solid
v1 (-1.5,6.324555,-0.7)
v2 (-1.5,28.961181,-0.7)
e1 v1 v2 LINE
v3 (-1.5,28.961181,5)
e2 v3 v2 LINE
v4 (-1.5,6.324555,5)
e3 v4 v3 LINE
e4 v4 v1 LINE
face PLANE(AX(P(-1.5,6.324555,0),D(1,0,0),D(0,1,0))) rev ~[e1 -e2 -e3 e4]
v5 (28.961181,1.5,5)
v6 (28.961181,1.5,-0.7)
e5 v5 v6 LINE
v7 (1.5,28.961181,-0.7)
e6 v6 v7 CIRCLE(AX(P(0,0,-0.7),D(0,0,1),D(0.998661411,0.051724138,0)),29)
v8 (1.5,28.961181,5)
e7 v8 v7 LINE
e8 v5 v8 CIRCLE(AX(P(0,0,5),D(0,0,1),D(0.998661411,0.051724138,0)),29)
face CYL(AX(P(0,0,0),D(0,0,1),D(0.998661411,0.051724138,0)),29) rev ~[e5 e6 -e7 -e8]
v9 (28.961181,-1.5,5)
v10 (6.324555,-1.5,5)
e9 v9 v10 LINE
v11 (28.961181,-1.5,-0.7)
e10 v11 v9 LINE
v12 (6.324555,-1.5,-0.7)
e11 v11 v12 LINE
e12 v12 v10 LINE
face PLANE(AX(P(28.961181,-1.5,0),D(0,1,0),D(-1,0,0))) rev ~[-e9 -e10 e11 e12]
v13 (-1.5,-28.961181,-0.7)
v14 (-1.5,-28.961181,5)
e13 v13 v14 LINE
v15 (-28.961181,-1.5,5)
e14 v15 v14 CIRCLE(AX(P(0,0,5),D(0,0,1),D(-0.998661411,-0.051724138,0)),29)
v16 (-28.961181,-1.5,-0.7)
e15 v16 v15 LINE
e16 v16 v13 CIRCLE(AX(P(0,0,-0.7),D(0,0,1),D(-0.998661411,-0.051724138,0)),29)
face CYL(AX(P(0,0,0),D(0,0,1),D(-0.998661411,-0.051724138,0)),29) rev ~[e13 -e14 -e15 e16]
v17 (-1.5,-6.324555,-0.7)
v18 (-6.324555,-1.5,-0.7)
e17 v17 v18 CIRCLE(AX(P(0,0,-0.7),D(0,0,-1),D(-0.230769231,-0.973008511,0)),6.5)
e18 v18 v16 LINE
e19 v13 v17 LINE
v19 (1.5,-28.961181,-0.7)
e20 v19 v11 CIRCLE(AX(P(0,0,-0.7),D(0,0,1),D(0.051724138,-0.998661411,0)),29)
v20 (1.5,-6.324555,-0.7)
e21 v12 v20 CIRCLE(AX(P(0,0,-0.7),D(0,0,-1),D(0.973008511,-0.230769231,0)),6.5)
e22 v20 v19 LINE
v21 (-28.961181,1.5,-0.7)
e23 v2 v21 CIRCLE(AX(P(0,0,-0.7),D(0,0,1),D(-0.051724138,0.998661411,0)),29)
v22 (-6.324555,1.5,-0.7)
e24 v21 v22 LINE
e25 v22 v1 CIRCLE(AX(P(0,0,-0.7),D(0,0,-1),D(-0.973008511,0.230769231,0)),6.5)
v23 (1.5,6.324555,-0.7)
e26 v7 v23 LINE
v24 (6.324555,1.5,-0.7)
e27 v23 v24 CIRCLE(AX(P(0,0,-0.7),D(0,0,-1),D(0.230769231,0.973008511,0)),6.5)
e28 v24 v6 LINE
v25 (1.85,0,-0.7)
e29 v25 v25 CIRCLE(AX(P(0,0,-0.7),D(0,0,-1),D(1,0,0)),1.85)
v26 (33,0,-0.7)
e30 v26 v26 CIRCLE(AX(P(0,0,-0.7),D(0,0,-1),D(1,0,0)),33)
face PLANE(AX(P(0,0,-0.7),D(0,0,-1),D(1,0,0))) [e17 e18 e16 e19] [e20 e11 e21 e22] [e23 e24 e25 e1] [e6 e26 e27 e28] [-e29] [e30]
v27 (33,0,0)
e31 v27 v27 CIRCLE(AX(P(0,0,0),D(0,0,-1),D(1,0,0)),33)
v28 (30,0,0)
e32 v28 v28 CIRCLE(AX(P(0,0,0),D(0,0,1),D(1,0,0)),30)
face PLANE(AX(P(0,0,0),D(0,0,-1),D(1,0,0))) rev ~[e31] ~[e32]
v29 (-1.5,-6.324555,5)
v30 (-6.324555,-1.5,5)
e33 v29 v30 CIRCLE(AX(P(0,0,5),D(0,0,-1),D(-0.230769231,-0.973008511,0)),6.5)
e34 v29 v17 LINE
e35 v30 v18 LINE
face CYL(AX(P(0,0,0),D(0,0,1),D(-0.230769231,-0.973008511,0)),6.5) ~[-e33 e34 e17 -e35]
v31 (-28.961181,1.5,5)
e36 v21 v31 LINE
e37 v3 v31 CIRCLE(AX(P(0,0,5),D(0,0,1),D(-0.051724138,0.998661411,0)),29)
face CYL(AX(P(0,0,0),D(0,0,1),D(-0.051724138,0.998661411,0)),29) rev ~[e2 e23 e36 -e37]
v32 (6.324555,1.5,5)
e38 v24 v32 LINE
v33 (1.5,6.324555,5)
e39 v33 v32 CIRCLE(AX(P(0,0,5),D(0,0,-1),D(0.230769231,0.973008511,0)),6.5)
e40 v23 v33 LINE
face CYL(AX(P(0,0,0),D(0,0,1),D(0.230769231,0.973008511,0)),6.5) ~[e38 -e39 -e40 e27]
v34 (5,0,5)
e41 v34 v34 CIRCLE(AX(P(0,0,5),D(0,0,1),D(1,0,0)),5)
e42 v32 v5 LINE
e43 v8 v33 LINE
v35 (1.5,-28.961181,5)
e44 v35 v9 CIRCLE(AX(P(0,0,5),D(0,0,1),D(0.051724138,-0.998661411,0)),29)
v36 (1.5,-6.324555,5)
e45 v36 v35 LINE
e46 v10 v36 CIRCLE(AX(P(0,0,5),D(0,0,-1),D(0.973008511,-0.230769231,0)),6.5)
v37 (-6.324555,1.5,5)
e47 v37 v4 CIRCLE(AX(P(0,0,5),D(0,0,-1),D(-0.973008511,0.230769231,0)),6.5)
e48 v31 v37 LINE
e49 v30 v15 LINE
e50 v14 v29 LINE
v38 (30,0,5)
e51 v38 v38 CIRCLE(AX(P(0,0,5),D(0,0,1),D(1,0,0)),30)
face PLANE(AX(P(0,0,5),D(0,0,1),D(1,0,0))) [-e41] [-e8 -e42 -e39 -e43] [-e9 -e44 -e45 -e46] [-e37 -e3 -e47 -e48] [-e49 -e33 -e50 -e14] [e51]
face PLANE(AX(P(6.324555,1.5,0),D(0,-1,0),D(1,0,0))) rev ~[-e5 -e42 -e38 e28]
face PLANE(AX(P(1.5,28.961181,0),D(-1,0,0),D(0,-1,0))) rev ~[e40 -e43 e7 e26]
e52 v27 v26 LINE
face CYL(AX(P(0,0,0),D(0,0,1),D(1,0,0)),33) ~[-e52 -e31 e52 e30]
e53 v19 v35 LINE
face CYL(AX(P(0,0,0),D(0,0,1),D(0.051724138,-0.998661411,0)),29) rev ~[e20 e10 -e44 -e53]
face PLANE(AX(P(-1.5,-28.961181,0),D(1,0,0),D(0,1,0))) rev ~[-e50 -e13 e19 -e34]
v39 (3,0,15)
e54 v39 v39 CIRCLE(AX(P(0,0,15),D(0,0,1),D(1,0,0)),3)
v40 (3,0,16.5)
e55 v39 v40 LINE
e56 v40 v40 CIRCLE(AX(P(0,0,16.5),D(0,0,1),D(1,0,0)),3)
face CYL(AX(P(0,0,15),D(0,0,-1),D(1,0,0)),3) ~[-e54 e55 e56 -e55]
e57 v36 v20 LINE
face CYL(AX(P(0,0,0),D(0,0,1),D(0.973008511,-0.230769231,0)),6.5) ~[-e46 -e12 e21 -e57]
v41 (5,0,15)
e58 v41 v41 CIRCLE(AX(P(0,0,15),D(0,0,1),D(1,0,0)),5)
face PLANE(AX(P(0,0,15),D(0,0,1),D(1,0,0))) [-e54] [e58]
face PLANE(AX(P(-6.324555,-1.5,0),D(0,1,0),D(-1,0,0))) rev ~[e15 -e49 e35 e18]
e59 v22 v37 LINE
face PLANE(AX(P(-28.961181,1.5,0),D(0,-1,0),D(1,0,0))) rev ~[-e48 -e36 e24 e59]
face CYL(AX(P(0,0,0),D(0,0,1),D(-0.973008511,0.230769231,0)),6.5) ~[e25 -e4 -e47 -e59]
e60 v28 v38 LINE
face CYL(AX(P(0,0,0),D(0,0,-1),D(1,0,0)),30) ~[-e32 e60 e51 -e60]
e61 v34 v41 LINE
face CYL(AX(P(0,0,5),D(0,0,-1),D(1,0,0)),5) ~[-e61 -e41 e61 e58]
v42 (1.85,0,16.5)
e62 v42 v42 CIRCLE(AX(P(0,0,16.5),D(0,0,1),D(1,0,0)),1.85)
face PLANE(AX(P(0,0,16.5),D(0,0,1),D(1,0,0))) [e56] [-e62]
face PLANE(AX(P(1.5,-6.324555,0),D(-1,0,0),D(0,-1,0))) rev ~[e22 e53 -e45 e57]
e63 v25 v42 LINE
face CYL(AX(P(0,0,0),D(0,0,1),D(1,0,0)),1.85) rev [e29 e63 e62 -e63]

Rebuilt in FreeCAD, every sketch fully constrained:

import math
import FreeCAD as App
import Part
import Sketcher

V = App.Vector

doc = App.newDocument("Part")
params = doc.addObject("Spreadsheet::Sheet", "Params")
for row, (alias, value) in enumerate([
    ("sketch1_diameter", "60 mm"),
    ("pad1_length", "5 mm"),
    ("sketch2_diameter", "10 mm"),
    ("pad2_length", "10 mm"),
    ("sketch3_diameter", "3.7 mm"),
    ("sketch4_diameter", "6 mm"),
    ("sketch4_diameter2", "3.7 mm"),
    ("pad3_length", "1.5 mm"),
    ("sketch5_radius", "29 mm"),
    ("sketch5_radius2", "6.5 mm"),
    ("sketch6_diameter", "66 mm"),
    ("sketch6_radius", "29 mm"),
    ("sketch6_diameter2", "3.7 mm"),
    ("sketch6_radius2", "6.5 mm"),
    ("pad4_length", "0.7 mm"),
], start=1):
    params.set(f"A{row}", alias)
    params.set(f"B{row}", "=" + value)
    params.setAlias(f"B{row}", alias)

body = doc.addObject("PartDesign::Body", "Body")

sketch1 = body.newObject("Sketcher::SketchObject", "Sketch")
sketch1.AttachmentSupport = (doc.getObject("XY_Plane"), [""])
sketch1.MapMode = "FlatFace"
sketch1.addGeometry(Part.Circle(V(0, 0, 0), V(0, 0, 1), 30), False)
sketch1.addConstraint([
    Sketcher.Constraint("Coincident", 0, 3, -1, 1),
    Sketcher.Constraint("Diameter", 0, 60.0),
])
sketch1.setExpression("Constraints[1]", "Params.sketch1_diameter")
pad1 = body.newObject("PartDesign::Pad", "Pad")
pad1.Profile = sketch1
pad1.setExpression("Length", "Params.pad1_length")

sketch2 = body.newObject("Sketcher::SketchObject", "Sketch001")
sketch2.AttachmentSupport = (doc.getObject("XY_Plane"), [""])
sketch2.MapMode = "FlatFace"
sketch2.AttachmentOffset = App.Placement(V(0, 0, 5), App.Rotation())
sketch2.addGeometry(Part.Circle(V(0, 0, 0), V(0, 0, 1), 5), False)
sketch2.addConstraint([
    Sketcher.Constraint("Coincident", 0, 3, -1, 1),
    Sketcher.Constraint("Diameter", 0, 10.0),
])
sketch2.setExpression("Constraints[1]", "Params.sketch2_diameter")
pad2 = body.newObject("PartDesign::Pad", "Pad001")
pad2.Profile = sketch2
pad2.setExpression("Length", "Params.pad2_length")

sketch3 = body.newObject("Sketcher::SketchObject", "Sketch002")
sketch3.AttachmentSupport = (doc.getObject("XY_Plane"), [""])
sketch3.MapMode = "FlatFace"
sketch3.AttachmentOffset = App.Placement(V(0, 0, 15), App.Rotation())
sketch3.addGeometry(Part.Circle(V(0, 0, 0), V(0, 0, 1), 1.9), False)
sketch3.addConstraint([
    Sketcher.Constraint("Coincident", 0, 3, -1, 1),
    Sketcher.Constraint("Diameter", 0, 3.7),
])
sketch3.setExpression("Constraints[1]", "Params.sketch3_diameter")
pocket1 = body.newObject("PartDesign::Pocket", "Pocket")
pocket1.Profile = sketch3
pocket1.Type = "ThroughAll"

sketch4 = body.newObject("Sketcher::SketchObject", "Sketch003")
sketch4.AttachmentSupport = (doc.getObject("XY_Plane"), [""])
sketch4.MapMode = "FlatFace"
sketch4.AttachmentOffset = App.Placement(V(0, 0, 15), App.Rotation())
sketch4.addGeometry([
    Part.Circle(V(0, 0, 0), V(0, 0, 1), 3),
    Part.Circle(V(0, 0, 0), V(0, 0, 1), 1.9),
], False)
sketch4.addConstraint([
    Sketcher.Constraint("Coincident", 0, 3, -1, 1),
    Sketcher.Constraint("Coincident", 1, 3, -1, 1),
    Sketcher.Constraint("Diameter", 0, 6.0),
    Sketcher.Constraint("Diameter", 1, 3.7),
])
sketch4.setExpression("Constraints[2]", "Params.sketch4_diameter")
sketch4.setExpression("Constraints[3]", "Params.sketch4_diameter2")
pad3 = body.newObject("PartDesign::Pad", "Pad002")
pad3.Profile = sketch4
pad3.setExpression("Length", "Params.pad3_length")

sketch5 = body.newObject("Sketcher::SketchObject", "Sketch004")
sketch5.AttachmentSupport = (doc.getObject("XY_Plane"), [""])
sketch5.MapMode = "FlatFace"
sketch5.AttachmentOffset = App.Placement(V(0, 0, 5), App.Rotation())
sketch5.addGeometry([
    Part.LineSegment(V(6, 2, 0), V(29, 2, 0)),
    Part.ArcOfCircle(Part.Circle(V(0, 0, 0), V(0, 0, 1), 29), math.radians(3), math.radians(87)),
    Part.LineSegment(V(2, 29, 0), V(2, 6, 0)),
    Part.ArcOfCircle(Part.Circle(V(0, 0, 0), V(0, 0, 1), 6), math.radians(13), math.radians(77)),
    Part.LineSegment(V(-2, 6, 0), V(-2, 29, 0)),
    Part.ArcOfCircle(Part.Circle(V(0, 0, 0), V(0, 0, 1), 29), math.radians(93), math.radians(177)),
    Part.LineSegment(V(-29, 2, 0), V(-6, 2, 0)),
    Part.ArcOfCircle(Part.Circle(V(0, 0, 0), V(0, 0, 1), 6), math.radians(103), math.radians(167)),
    Part.ArcOfCircle(Part.Circle(V(0, 0, 0), V(0, 0, 1), 29), math.radians(-177), math.radians(-93)),
    Part.LineSegment(V(-2, -29, 0), V(-2, -6, 0)),
    Part.ArcOfCircle(Part.Circle(V(0, 0, 0), V(0, 0, 1), 6), math.radians(-167), math.radians(-103)),
    Part.LineSegment(V(-6, -2, 0), V(-29, -2, 0)),
    Part.ArcOfCircle(Part.Circle(V(0, 0, 0), V(0, 0, 1), 29), math.radians(-87), math.radians(-3)),
    Part.LineSegment(V(29, -2, 0), V(6, -2, 0)),
    Part.ArcOfCircle(Part.Circle(V(0, 0, 0), V(0, 0, 1), 6), math.radians(-77), math.radians(-13)),
    Part.LineSegment(V(2, -6, 0), V(2, -29, 0)),
], False)
sketch5.addConstraint([
    Sketcher.Constraint("Coincident", 0, 2, 1, 1),
    Sketcher.Constraint("Coincident", 1, 2, 2, 1),
    Sketcher.Constraint("Coincident", 2, 2, 3, 2),
    Sketcher.Constraint("Coincident", 3, 1, 0, 1),
    Sketcher.Constraint("Coincident", 4, 2, 5, 1),
    Sketcher.Constraint("Coincident", 5, 2, 6, 1),
    Sketcher.Constraint("Coincident", 6, 2, 7, 2),
    Sketcher.Constraint("Coincident", 7, 1, 4, 1),
    Sketcher.Constraint("Coincident", 8, 2, 9, 1),
    Sketcher.Constraint("Coincident", 9, 2, 10, 2),
    Sketcher.Constraint("Coincident", 10, 1, 11, 1),
    Sketcher.Constraint("Coincident", 11, 2, 8, 1),
    Sketcher.Constraint("Coincident", 12, 2, 13, 1),
    Sketcher.Constraint("Coincident", 13, 2, 14, 2),
    Sketcher.Constraint("Coincident", 14, 1, 15, 1),
    Sketcher.Constraint("Coincident", 15, 2, 12, 1),
    Sketcher.Constraint("Horizontal", 0),
    Sketcher.Constraint("Vertical", 2),
    Sketcher.Constraint("Vertical", 4),
    Sketcher.Constraint("Horizontal", 6),
    Sketcher.Constraint("Vertical", 9),
    Sketcher.Constraint("Horizontal", 11),
    Sketcher.Constraint("Horizontal", 13),
    Sketcher.Constraint("Vertical", 15),
    Sketcher.Constraint("Coincident", 1, 3, -1, 1),
    Sketcher.Constraint("Coincident", 3, 3, -1, 1),
    Sketcher.Constraint("Coincident", 5, 3, -1, 1),
    Sketcher.Constraint("Coincident", 7, 3, -1, 1),
    Sketcher.Constraint("Coincident", 8, 3, -1, 1),
    Sketcher.Constraint("Coincident", 10, 3, -1, 1),
    Sketcher.Constraint("Coincident", 12, 3, -1, 1),
    Sketcher.Constraint("Coincident", 14, 3, -1, 1),
    Sketcher.Constraint("Equal", 1, 5),
    Sketcher.Constraint("Equal", 3, 7),
    Sketcher.Constraint("Equal", 5, 8),
    Sketcher.Constraint("Equal", 7, 10),
    Sketcher.Constraint("Equal", 8, 12),
    Sketcher.Constraint("Equal", 10, 14),
    Sketcher.Constraint("Horizontal", 1, 2, 4, 2),
    Sketcher.Constraint("Horizontal", 3, 1, 5, 2),
    Sketcher.Constraint("Horizontal", 11, 2, 12, 2),
    Sketcher.Constraint("Horizontal", 9, 2, 14, 1),
    Sketcher.Constraint("Vertical", 7, 1, 8, 2),
    Sketcher.Constraint("Vertical", 6, 2, 10, 1),
    Sketcher.Constraint("Equal", 13, 2),
    Sketcher.Constraint("Radius", 1, 29.0),
    Sketcher.Constraint("Radius", 3, 6.5),
    Sketcher.Constraint("DistanceX", 4, 2, 1, 2, 3.0),
])
sketch5.setExpression("Constraints[45]", "Params.sketch5_radius")
sketch5.setExpression("Constraints[46]", "Params.sketch5_radius2")
pocket2 = body.newObject("PartDesign::Pocket", "Pocket001")
pocket2.Profile = sketch5
pocket2.Type = "ThroughAll"

sketch6 = body.newObject("Sketcher::SketchObject", "Sketch005")
sketch6.AttachmentSupport = (doc.getObject("XY_Plane"), [""])
sketch6.MapMode = "FlatFace"
sketch6.addGeometry([
    Part.Circle(V(0, 0, 0), V(0, 0, 1), 33),
    Part.ArcOfCircle(Part.Circle(V(0, 0, 0), V(0, 0, 1), 6.5), math.radians(103), math.radians(167)),
    Part.LineSegment(V(-1.5, 6.3, 0), V(-1.5, 29, 0)),
    Part.ArcOfCircle(Part.Circle(V(0, 0, 0), V(0, 0, 1), 29), math.radians(93), math.radians(177)),
    Part.LineSegment(V(-29, 1.5, 0), V(-6.3, 1.5, 0)),
    Part.LineSegment(V(6.3, 1.5, 0), V(29, 1.5, 0)),
    Part.ArcOfCircle(Part.Circle(V(0, 0, 0), V(0, 0, 1), 29), math.radians(3), math.radians(87)),
    Part.LineSegment(V(1.5, 29, 0), V(1.5, 6.3, 0)),
    Part.ArcOfCircle(Part.Circle(V(0, 0, 0), V(0, 0, 1), 6.5), math.radians(13), math.radians(77)),
    Part.LineSegment(V(-1.5, -29, 0), V(-1.5, -6.3, 0)),
    Part.ArcOfCircle(Part.Circle(V(0, 0, 0), V(0, 0, 1), 6.5), math.radians(-167), math.radians(-103)),
    Part.LineSegment(V(-6.3, -1.5, 0), V(-29, -1.5, 0)),
    Part.ArcOfCircle(Part.Circle(V(0, 0, 0), V(0, 0, 1), 29), math.radians(-177), math.radians(-93)),
    Part.Circle(V(0, 0, 0), V(0, 0, 1), 1.9),
    Part.ArcOfCircle(Part.Circle(V(0, 0, 0), V(0, 0, 1), 6.5), math.radians(-77), math.radians(-13)),
    Part.LineSegment(V(1.5, -6.3, 0), V(1.5, -29, 0)),
    Part.ArcOfCircle(Part.Circle(V(0, 0, 0), V(0, 0, 1), 29), math.radians(-87), math.radians(-3)),
    Part.LineSegment(V(29, -1.5, 0), V(6.3, -1.5, 0)),
], False)
sketch6.addConstraint([
    Sketcher.Constraint("Coincident", 1, 1, 2, 1),
    Sketcher.Constraint("Coincident", 2, 2, 3, 1),
    Sketcher.Constraint("Coincident", 3, 2, 4, 1),
    Sketcher.Constraint("Coincident", 4, 2, 1, 2),
    Sketcher.Constraint("Coincident", 5, 2, 6, 1),
    Sketcher.Constraint("Coincident", 6, 2, 7, 1),
    Sketcher.Constraint("Coincident", 7, 2, 8, 2),
    Sketcher.Constraint("Coincident", 8, 1, 5, 1),
    Sketcher.Constraint("Coincident", 9, 2, 10, 2),
    Sketcher.Constraint("Coincident", 10, 1, 11, 1),
    Sketcher.Constraint("Coincident", 11, 2, 12, 1),
    Sketcher.Constraint("Coincident", 12, 2, 9, 1),
    Sketcher.Constraint("Coincident", 14, 1, 15, 1),
    Sketcher.Constraint("Coincident", 15, 2, 16, 1),
    Sketcher.Constraint("Coincident", 16, 2, 17, 1),
    Sketcher.Constraint("Coincident", 17, 2, 14, 2),
    Sketcher.Constraint("Vertical", 2),
    Sketcher.Constraint("Horizontal", 4),
    Sketcher.Constraint("Horizontal", 5),
    Sketcher.Constraint("Vertical", 7),
    Sketcher.Constraint("Vertical", 9),
    Sketcher.Constraint("Horizontal", 11),
    Sketcher.Constraint("Vertical", 15),
    Sketcher.Constraint("Horizontal", 17),
    Sketcher.Constraint("Coincident", 0, 3, -1, 1),
    Sketcher.Constraint("Coincident", 1, 3, -1, 1),
    Sketcher.Constraint("Coincident", 3, 3, -1, 1),
    Sketcher.Constraint("Coincident", 6, 3, -1, 1),
    Sketcher.Constraint("Coincident", 8, 3, -1, 1),
    Sketcher.Constraint("Coincident", 10, 3, -1, 1),
    Sketcher.Constraint("Coincident", 12, 3, -1, 1),
    Sketcher.Constraint("Coincident", 13, 3, -1, 1),
    Sketcher.Constraint("Coincident", 14, 3, -1, 1),
    Sketcher.Constraint("Coincident", 16, 3, -1, 1),
    Sketcher.Constraint("Equal", 3, 6),
    Sketcher.Constraint("Equal", 1, 8),
    Sketcher.Constraint("Equal", 8, 10),
    Sketcher.Constraint("Equal", 6, 12),
    Sketcher.Constraint("Equal", 10, 14),
    Sketcher.Constraint("Equal", 12, 16),
    Sketcher.Constraint("Horizontal", 4, 2, 5, 2),
    Sketcher.Constraint("Horizontal", 2, 2, 6, 2),
    Sketcher.Constraint("Horizontal", 9, 2, 14, 1),
    Sketcher.Constraint("Horizontal", 11, 2, 16, 2),
    Sketcher.Constraint("Vertical", 2, 2, 9, 2),
    Sketcher.Constraint("Vertical", 4, 2, 10, 1),
    Sketcher.Constraint("Equal", 17, 2),
    Sketcher.Constraint("Diameter", 0, 66.0),
    Sketcher.Constraint("Radius", 3, 29.0),
    Sketcher.Constraint("Diameter", 13, 3.7),
    Sketcher.Constraint("Radius", 1, 6.5),
    Sketcher.Constraint("DistanceX", 2, 2, 6, 2, 3.0),
])
sketch6.setExpression("Constraints[47]", "Params.sketch6_diameter")
sketch6.setExpression("Constraints[48]", "Params.sketch6_radius")
sketch6.setExpression("Constraints[49]", "Params.sketch6_diameter2")
sketch6.setExpression("Constraints[50]", "Params.sketch6_radius2")
pad4 = body.newObject("PartDesign::Pad", "Pad003")
pad4.Profile = sketch6
pad4.setExpression("Length", "Params.pad4_length")
pad4.Reversed = True

doc.recompute()
